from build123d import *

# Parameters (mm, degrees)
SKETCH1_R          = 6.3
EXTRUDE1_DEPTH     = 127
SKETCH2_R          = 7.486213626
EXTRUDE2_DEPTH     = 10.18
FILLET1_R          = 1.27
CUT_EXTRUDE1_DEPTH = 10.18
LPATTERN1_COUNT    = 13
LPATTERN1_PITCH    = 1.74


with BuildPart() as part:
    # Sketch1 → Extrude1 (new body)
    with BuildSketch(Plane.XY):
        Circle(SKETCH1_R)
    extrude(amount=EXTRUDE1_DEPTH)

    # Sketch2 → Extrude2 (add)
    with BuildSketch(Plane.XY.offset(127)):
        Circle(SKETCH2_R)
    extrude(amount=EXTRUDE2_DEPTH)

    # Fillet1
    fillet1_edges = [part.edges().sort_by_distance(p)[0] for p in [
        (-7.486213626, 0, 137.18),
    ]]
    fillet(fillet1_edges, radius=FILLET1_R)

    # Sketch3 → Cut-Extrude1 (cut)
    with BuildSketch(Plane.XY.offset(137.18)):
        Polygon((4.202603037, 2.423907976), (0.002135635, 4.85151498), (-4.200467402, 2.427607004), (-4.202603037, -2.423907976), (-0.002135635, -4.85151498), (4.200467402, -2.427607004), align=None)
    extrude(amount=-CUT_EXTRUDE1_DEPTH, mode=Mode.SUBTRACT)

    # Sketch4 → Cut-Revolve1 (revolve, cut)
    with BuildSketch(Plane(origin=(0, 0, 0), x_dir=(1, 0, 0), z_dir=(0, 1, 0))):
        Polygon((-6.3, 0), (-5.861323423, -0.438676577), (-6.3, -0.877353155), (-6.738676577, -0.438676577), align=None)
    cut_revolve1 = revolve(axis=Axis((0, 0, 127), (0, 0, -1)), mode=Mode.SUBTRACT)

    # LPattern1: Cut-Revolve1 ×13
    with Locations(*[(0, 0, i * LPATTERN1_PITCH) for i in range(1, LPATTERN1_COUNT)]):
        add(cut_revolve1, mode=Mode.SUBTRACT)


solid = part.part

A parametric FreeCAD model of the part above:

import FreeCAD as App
import Part
import Sketcher

V = App.Vector
Q = App.Units.Quantity


def edges_at(feature, points):
    """Names of the edges that pass closest to the given points."""
    edges = feature.Shape.Edges
    near = lambda p: min(range(len(edges)), key=lambda i: edges[i].distToShape(Part.Vertex(*p))[0])
    return sorted({f"Edge{near(p) + 1}" for p in points})

doc = App.newDocument("Part")
body = doc.addObject("PartDesign::Body", "Body")

sketch1 = doc.addObject("Sketcher::SketchObject", "Sketch")
body.addObject(sketch1)
sketch1.AttachmentSupport = (doc.XY_Plane, [""])
sketch1.MapMode = "FlatFace"
sketch1.addGeometry(Part.Circle(V(0, 0, 0), V(0, 0, 1), 6), False)
sketch1.addConstraint([
    Sketcher.Constraint("Coincident", 0, 3, -1, 1),
    Sketcher.Constraint("Diameter", 0, Q("12.6 mm")),
])
pad1 = doc.addObject("PartDesign::Pad", "Pad")
body.addObject(pad1)
pad1.Profile = sketch1
pad1.Length = Q("5 in")

sketch2 = doc.addObject("Sketcher::SketchObject", "Sketch001")
body.addObject(sketch2)
sketch2.AttachmentSupport = (doc.XY_Plane, [""])
sketch2.MapMode = "FlatFace"
sketch2.AttachmentOffset = App.Placement(V(0, 0, 5 * 25.4), App.Rotation())
sketch2.addGeometry(Part.Circle(V(0, 0, 0), V(0, 0, 1), 7), False)
sketch2.addConstraint([
    Sketcher.Constraint("Coincident", 0, 3, -1, 1),
    Sketcher.Constraint("Diameter", 0, Q("14.972427 mm")),
])
pad2 = doc.addObject("PartDesign::Pad", "Pad001")
body.addObject(pad2)
pad2.Profile = sketch2
pad2.Length = 10.18
doc.recompute()

fillet = doc.addObject("PartDesign::Fillet", "Fillet")
body.addObject(fillet)
fillet.Base = (pad2, edges_at(pad2, [(-7.486, 0, 137.18)]))
fillet.Radius = Q("0.05 in")

sketch3 = doc.addObject("Sketcher::SketchObject", "Sketch002")
body.addObject(sketch3)
sketch3.AttachmentSupport = (doc.XY_Plane, [""])
sketch3.MapMode = "FlatFace"
sketch3.AttachmentOffset = App.Placement(V(0, 0, 137.18), App.Rotation())
sketch3.addGeometry([
    Part.LineSegment(V(4.2, 2.4, 0), V(0, 4.9, 0)),
    Part.LineSegment(V(0, 4.9, 0), V(-4.2, 2.4, 0)),
    Part.LineSegment(V(-4.2, 2.4, 0), V(-4.2, -2.4, 0)),
    Part.LineSegment(V(-4.2, -2.4, 0), V(0, -4.9, 0)),
    Part.LineSegment(V(0, -4.9, 0), V(4.2, -2.4, 0)),
    Part.LineSegment(V(4.2, -2.4, 0), V(4.2, 2.4, 0)),
], False)
sketch3.addConstraint([
    Sketcher.Constraint("Coincident", 0, 2, 1, 1),
    Sketcher.Constraint("Coincident", 1, 2, 2, 1),
    Sketcher.Constraint("Coincident", 2, 2, 3, 1),
    Sketcher.Constraint("Coincident", 3, 2, 4, 1),
    Sketcher.Constraint("Coincident", 4, 2, 5, 1),
    Sketcher.Constraint("Coincident", 5, 2, 0, 1),
    Sketcher.Constraint("Symmetric", 0, 2, 3, 2, -1, 1),
    Sketcher.Constraint("Symmetric", 1, 2, 4, 2, -1, 1),
    Sketcher.Constraint("Symmetric", 2, 2, 5, 2, -1, 1),
    Sketcher.Constraint("Equal", 0, 1),
    Sketcher.Constraint("Equal", 1, 2),
    Sketcher.Constraint("DistanceY", 4, 2, 2, 2, Q("0.003699 mm")),
    Sketcher.Constraint("DistanceX", 2, 2, 0, 2, Q("4.204739 mm")),
    Sketcher.Constraint("DistanceX", 1, 2, 3, 2, Q("4.198332 mm")),
    Sketcher.Constraint("DistanceY", 3, 2, 1, 2, Q("7.279122 mm")),
])
pocket1 = doc.addObject("PartDesign::Pocket", "Pocket")
body.addObject(pocket1)
pocket1.Profile = sketch3
pocket1.Length = 10.18

sketch4 = doc.addObject("Sketcher::SketchObject", "Sketch003")
body.addObject(sketch4)
sketch4.AttachmentSupport = (doc.XZ_Plane, [""])
sketch4.MapMode = "FlatFace"
sketch4.addGeometry([
    Part.LineSegment(V(-5.9, 0.4, 0), V(-6.3, 0, 0)),
    Part.LineSegment(V(-6.3, 0, 0), V(-6.7, 0.4, 0)),
    Part.LineSegment(V(-6.7, 0.4, 0), V(-6.3, 0.9, 0)),
    Part.LineSegment(V(-6.3, 0.9, 0), V(-5.9, 0.4, 0)),
], False)
sketch4.addConstraint([
    Sketcher.Constraint("Coincident", 0, 2, 1, 1),
    Sketcher.Constraint("Coincident", 1, 2, 2, 1),
    Sketcher.Constraint("Coincident", 2, 2, 3, 1),
    Sketcher.Constraint("Coincident", 3, 2, 0, 1),
    Sketcher.Constraint("PointOnObject", 0, 2, -1),
    Sketcher.Constraint("Perpendicular", 0, 1),
    Sketcher.Constraint("Perpendicular", 1, 2),
    Sketcher.Constraint("Perpendicular", 2, 3),
    Sketcher.Constraint("Horizontal", 1, 2, 3, 2),
    Sketcher.Constraint("Vertical", 0, 2, 2, 2),
    Sketcher.Constraint("DistanceX", 0, 2, -1, 1, Q("6.3 mm")),
    Sketcher.Constraint("Distance", 0, Q("0.620382 mm")),
])
groove = doc.addObject("PartDesign::Groove", "Groove")
body.addObject(groove)
groove.Profile = sketch4
groove.ReferenceAxis = (sketch4, ["V_Axis"])
groove.Angle = 360
doc.recompute()

linearpattern = doc.addObject("PartDesign::LinearPattern", "LinearPattern")
body.addObject(linearpattern)
linearpattern.Originals = [groove]
linearpattern.Direction = (doc.Z_Axis, [""])
linearpattern.Mode = "offset"
linearpattern.Offset = 1.74
linearpattern.Occurrences = 13
body.Tip = linearpattern

doc.recompute()
